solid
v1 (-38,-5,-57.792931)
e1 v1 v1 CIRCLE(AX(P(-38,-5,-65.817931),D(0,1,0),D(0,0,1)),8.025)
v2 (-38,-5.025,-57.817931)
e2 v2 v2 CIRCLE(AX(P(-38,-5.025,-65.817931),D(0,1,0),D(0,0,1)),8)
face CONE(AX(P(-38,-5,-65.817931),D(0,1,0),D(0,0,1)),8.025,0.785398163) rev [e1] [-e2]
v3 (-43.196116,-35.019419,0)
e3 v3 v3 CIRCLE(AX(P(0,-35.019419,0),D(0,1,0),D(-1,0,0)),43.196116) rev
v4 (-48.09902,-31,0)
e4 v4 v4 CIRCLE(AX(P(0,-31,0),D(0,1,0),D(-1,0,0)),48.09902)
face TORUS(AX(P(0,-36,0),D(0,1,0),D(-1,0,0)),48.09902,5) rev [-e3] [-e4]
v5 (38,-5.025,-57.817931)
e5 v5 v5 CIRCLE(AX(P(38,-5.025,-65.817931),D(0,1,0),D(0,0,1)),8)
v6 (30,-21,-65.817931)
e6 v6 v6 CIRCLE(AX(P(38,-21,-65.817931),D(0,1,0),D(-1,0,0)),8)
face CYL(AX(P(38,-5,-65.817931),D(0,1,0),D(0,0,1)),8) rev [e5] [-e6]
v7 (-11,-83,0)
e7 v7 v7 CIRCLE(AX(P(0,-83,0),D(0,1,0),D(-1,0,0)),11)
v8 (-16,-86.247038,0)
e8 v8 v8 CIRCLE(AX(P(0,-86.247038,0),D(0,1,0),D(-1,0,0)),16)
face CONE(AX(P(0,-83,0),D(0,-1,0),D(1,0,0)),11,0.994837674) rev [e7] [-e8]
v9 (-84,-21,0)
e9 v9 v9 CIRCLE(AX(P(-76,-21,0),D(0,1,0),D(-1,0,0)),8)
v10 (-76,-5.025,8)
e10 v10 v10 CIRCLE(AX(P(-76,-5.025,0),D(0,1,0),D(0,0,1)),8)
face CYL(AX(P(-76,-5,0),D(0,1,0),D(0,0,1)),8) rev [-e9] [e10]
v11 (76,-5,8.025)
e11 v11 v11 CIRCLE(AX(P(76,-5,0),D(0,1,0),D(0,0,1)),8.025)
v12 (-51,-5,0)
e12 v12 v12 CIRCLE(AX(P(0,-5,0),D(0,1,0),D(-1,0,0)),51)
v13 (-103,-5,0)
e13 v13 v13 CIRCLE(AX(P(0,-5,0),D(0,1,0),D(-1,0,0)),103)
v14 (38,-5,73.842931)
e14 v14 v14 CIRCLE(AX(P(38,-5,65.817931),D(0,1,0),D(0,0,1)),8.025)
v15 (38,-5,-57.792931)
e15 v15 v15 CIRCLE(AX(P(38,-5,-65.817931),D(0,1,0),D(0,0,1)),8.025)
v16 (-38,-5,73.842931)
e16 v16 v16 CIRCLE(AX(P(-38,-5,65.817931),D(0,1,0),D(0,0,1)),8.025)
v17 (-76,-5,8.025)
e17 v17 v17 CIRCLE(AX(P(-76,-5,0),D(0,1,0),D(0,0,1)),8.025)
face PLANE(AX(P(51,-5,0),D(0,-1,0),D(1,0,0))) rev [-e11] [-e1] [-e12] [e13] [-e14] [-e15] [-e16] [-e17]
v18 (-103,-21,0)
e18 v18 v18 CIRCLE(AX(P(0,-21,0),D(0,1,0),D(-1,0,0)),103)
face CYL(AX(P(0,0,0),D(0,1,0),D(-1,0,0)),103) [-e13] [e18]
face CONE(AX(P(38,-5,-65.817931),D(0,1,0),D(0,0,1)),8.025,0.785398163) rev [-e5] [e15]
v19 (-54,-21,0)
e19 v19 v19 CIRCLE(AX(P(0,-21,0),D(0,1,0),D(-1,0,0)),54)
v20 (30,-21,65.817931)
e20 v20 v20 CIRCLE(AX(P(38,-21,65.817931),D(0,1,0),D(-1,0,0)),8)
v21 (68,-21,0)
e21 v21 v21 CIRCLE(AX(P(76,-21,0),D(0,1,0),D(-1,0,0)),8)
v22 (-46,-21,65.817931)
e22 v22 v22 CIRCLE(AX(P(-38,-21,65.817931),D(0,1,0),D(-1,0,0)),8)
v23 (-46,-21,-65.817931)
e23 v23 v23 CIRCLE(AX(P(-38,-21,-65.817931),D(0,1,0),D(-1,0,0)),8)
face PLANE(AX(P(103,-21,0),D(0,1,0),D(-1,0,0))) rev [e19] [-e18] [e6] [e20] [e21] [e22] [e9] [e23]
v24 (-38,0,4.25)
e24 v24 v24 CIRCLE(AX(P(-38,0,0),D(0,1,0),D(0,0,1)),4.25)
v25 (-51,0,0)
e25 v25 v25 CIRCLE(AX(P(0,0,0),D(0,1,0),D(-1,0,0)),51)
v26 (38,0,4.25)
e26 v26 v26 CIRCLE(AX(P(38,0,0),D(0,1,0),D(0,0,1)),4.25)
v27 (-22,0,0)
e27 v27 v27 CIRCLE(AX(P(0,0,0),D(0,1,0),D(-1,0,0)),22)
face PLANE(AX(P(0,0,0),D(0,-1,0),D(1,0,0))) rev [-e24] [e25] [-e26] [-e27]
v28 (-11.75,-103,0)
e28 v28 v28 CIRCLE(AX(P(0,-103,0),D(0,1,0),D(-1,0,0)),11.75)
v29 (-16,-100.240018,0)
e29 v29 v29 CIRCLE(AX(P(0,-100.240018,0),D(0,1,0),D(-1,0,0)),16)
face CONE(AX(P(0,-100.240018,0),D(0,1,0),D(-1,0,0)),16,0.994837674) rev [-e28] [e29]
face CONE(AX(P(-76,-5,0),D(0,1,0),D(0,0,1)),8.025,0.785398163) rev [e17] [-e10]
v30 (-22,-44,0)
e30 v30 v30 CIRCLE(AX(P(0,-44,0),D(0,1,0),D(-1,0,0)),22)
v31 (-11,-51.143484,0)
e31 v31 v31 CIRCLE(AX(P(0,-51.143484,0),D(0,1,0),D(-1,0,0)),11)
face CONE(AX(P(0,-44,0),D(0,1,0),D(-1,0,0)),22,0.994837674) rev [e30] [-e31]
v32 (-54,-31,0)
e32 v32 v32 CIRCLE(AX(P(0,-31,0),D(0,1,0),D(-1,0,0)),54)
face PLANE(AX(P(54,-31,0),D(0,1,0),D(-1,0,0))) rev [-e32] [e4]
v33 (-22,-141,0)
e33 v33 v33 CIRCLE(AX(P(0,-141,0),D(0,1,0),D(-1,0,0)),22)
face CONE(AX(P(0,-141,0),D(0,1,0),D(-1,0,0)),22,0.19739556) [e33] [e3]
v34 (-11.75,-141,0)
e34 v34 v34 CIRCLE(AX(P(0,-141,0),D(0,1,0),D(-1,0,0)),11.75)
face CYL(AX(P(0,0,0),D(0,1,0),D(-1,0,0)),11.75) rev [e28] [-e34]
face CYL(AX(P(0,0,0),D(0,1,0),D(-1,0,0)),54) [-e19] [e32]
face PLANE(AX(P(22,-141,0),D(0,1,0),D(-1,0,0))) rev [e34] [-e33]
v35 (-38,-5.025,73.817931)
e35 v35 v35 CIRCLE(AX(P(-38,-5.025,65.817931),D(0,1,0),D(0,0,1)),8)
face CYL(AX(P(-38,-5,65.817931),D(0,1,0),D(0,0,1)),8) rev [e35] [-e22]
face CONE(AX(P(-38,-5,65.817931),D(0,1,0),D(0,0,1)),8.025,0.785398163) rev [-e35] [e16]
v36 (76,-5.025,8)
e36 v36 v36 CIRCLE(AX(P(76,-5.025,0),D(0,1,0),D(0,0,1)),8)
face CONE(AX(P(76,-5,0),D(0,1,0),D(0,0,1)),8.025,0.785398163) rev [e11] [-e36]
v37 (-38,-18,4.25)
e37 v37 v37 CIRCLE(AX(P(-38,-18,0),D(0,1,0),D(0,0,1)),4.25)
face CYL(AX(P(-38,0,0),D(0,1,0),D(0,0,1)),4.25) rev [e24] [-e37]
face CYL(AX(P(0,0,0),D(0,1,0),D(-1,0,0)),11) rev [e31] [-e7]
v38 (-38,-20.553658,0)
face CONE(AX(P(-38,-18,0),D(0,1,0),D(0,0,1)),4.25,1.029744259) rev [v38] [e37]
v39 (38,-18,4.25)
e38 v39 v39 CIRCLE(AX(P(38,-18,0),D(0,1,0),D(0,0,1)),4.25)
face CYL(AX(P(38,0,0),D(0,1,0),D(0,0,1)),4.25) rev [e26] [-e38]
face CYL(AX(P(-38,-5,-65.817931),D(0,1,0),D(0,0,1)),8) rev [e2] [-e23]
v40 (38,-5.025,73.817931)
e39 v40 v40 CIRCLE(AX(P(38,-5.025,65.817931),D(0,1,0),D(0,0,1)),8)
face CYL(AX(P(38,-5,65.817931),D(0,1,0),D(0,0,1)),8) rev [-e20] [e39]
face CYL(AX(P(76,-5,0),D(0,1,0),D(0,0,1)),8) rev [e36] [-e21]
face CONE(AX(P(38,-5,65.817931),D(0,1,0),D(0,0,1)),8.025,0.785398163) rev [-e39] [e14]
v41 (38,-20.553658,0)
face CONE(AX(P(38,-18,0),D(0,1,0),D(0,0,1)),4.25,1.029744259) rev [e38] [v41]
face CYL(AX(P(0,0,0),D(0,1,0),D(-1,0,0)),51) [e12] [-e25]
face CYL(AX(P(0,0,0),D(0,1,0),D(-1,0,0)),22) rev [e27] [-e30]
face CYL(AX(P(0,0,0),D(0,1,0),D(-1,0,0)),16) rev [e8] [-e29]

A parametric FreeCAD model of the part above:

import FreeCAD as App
import Part
import Sketcher

V = App.Vector
Q = App.Units.Quantity


def edges_at(feature, points):
    """Names of the edges that pass closest to the given points."""
    edges = feature.Shape.Edges
    near = lambda p: min(range(len(edges)), key=lambda i: edges[i].distToShape(Part.Vertex(*p))[0])
    return sorted({f"Edge{near(p) + 1}" for p in points})

doc = App.newDocument("Part")
body = doc.addObject("PartDesign::Body", "Body")

sketch1 = body.newObject("Sketcher::SketchObject", "Sketch")
sketch1.AttachmentSupport = (doc.getObject("XY_Plane"), [""])
sketch1.MapMode = "FlatFace"
sketch1.addGeometry(Part.LineSegment(V(51, 0, 0), V(0, 0, 0)), False)
sketch1.addGeometry(Part.LineSegment(V(0, 0, 0), V(0, -141, 0)), False)
sketch1.addGeometry(Part.LineSegment(V(0, -141, 0), V(22, -141, 0)), False)
sketch1.addGeometry(Part.LineSegment(V(22, -141, 0), V(44, -31, 0)), False)
sketch1.addGeometry(Part.LineSegment(V(44, -31, 0), V(54, -31, 0)), False)
sketch1.addGeometry(Part.LineSegment(V(54, -31, 0), V(54, -21, 0)), False)
sketch1.addGeometry(Part.LineSegment(V(54, -21, 0), V(103, -21, 0)), False)
sketch1.addGeometry(Part.LineSegment(V(103, -21, 0), V(103, -5, 0)), False)
sketch1.addGeometry(Part.LineSegment(V(103, -5, 0), V(51, -5, 0)), False)
sketch1.addGeometry(Part.LineSegment(V(51, -5, 0), V(51, 0, 0)), False)
sketch1.addConstraint(Sketcher.Constraint("Coincident", 0, 2, 1, 1))
sketch1.addConstraint(Sketcher.Constraint("Coincident", 1, 2, 2, 1))
sketch1.addConstraint(Sketcher.Constraint("Coincident", 2, 2, 3, 1))
sketch1.addConstraint(Sketcher.Constraint("Coincident", 3, 2, 4, 1))
sketch1.addConstraint(Sketcher.Constraint("Coincident", 4, 2, 5, 1))
sketch1.addConstraint(Sketcher.Constraint("Coincident", 5, 2, 6, 1))
sketch1.addConstraint(Sketcher.Constraint("Coincident", 6, 2, 7, 1))
sketch1.addConstraint(Sketcher.Constraint("Coincident", 7, 2, 8, 1))
sketch1.addConstraint(Sketcher.Constraint("Coincident", 8, 2, 9, 1))
sketch1.addConstraint(Sketcher.Constraint("Coincident", 9, 2, 0, 1))
sketch1.addConstraint(Sketcher.Constraint("Horizontal", 0))
sketch1.addConstraint(Sketcher.Constraint("Vertical", 1))
sketch1.addConstraint(Sketcher.Constraint("Horizontal", 2))
sketch1.addConstraint(Sketcher.Constraint("Horizontal", 4))
sketch1.addConstraint(Sketcher.Constraint("Vertical", 5))
sketch1.addConstraint(Sketcher.Constraint("Horizontal", 6))
sketch1.addConstraint(Sketcher.Constraint("Vertical", 7))
sketch1.addConstraint(Sketcher.Constraint("Horizontal", 8))
sketch1.addConstraint(Sketcher.Constraint("Vertical", 9))
sketch1.addConstraint(Sketcher.Constraint("Coincident", 0, 2, -1, 1))
sketch1.addConstraint(Sketcher.Constraint("Equal", 4, 5))
sketch1.addConstraint(Sketcher.Constraint("DistanceX", 0, 2, 0, 1, 51.0))
sketch1.addConstraint(Sketcher.Constraint("DistanceX", 2, 1, 2, 2, 22.0))
sketch1.addConstraint(Sketcher.Constraint("DistanceX", 4, 1, 4, 2, 10.0))
sketch1.addConstraint(Sketcher.Constraint("DistanceX", 6, 1, 6, 2, 49.0))
sketch1.addConstraint(Sketcher.Constraint("DistanceX", 8, 2, 8, 1, 52.0))
sketch1.addConstraint(Sketcher.Constraint("DistanceY", 1, 2, 1, 1, 141.0))
sketch1.addConstraint(Sketcher.Constraint("DistanceY", 7, 1, 7, 2, 16.0))
sketch1.addConstraint(Sketcher.Constraint("DistanceY", 9, 1, 9, 2, 5.0))
revolution = body.newObject("PartDesign::Revolution", "Revolution")
revolution.Profile = sketch1
revolution.ReferenceAxis = (sketch1, ["V_Axis"])
revolution.Angle = 360

sketch2 = body.newObject("Sketcher::SketchObject", "Sketch001")
sketch2.AttachmentSupport = (doc.getObject("XY_Plane"), [""])
sketch2.MapMode = "FlatFace"
sketch2.addGeometry(Part.LineSegment(V(-12, -103, 0), V(-12, -141, 0)), False)
sketch2.addGeometry(Part.LineSegment(V(-12, -141, 0), V(0, -141, 0)), False)
sketch2.addGeometry(Part.LineSegment(V(0, -141, 0), V(0, 0, 0)), False)
sketch2.addGeometry(Part.LineSegment(V(0, 0, 0), V(-22, 0, 0)), False)
sketch2.addGeometry(Part.LineSegment(V(-22, 0, 0), V(-22, -44, 0)), False)
sketch2.addGeometry(Part.LineSegment(V(-22, -44, 0), V(-11, -51, 0)), False)
sketch2.addGeometry(Part.LineSegment(V(-11, -51, 0), V(-11, -83, 0)), False)
sketch2.addGeometry(Part.LineSegment(V(-11, -83, 0), V(-16, -86, 0)), False)
sketch2.addGeometry(Part.LineSegment(V(-16, -86, 0), V(-16, -100, 0)), False)
sketch2.addGeometry(Part.LineSegment(V(-16, -100, 0), V(-12, -103, 0)), False)
sketch2.addConstraint(Sketcher.Constraint("Coincident", 0, 2, 1, 1))
sketch2.addConstraint(Sketcher.Constraint("Coincident", 1, 2, 2, 1))
sketch2.addConstraint(Sketcher.Constraint("Coincident", 2, 2, 3, 1))
sketch2.addConstraint(Sketcher.Constraint("Coincident", 3, 2, 4, 1))
sketch2.addConstraint(Sketcher.Constraint("Coincident", 4, 2, 5, 1))
sketch2.addConstraint(Sketcher.Constraint("Coincident", 5, 2, 6, 1))
sketch2.addConstraint(Sketcher.Constraint("Coincident", 6, 2, 7, 1))
sketch2.addConstraint(Sketcher.Constraint("Coincident", 7, 2, 8, 1))
sketch2.addConstraint(Sketcher.Constraint("Coincident", 8, 2, 9, 1))
sketch2.addConstraint(Sketcher.Constraint("Coincident", 9, 2, 0, 1))
sketch2.addConstraint(Sketcher.Constraint("Vertical", 0))
sketch2.addConstraint(Sketcher.Constraint("Horizontal", 1))
sketch2.addConstraint(Sketcher.Constraint("Vertical", 2))
sketch2.addConstraint(Sketcher.Constraint("Horizontal", 3))
sketch2.addConstraint(Sketcher.Constraint("Vertical", 4))
sketch2.addConstraint(Sketcher.Constraint("Vertical", 6))
sketch2.addConstraint(Sketcher.Constraint("Vertical", 8))
sketch2.addConstraint(Sketcher.Constraint("Coincident", 2, 2, -1, 1))
sketch2.addConstraint(Sketcher.Constraint("Parallel", 5, 9))
sketch2.addConstraint(Sketcher.Constraint("DistanceX", 3, 2, 3, 1, 22.0))
sketch2.addConstraint(Sketcher.Constraint("DistanceY", 0, 2, 0, 1, 38.0))
sketch2.addConstraint(Sketcher.Constraint("DistanceY", 2, 1, 2, 2, 141.0))
sketch2.addConstraint(Sketcher.Constraint("DistanceY", 4, 2, 4, 1, 44.0))
sketch2.addConstraint(Sketcher.Constraint("Angle", 5, Q("-33 deg")))
sketch2.addConstraint(Sketcher.Constraint("Angle", 7, Q("-147 deg")))
sketch2.addConstraint(Sketcher.Constraint("DistanceX", 5, 2, -1, 1, 11.0))
sketch2.addConstraint(Sketcher.Constraint("DistanceY", 6, 2, -1, 1, 83.0))
sketch2.addConstraint(Sketcher.Constraint("DistanceX", 7, 2, -1, 1, 16.0))
sketch2.addConstraint(Sketcher.Constraint("DistanceX", 1, 1, 1, 2, 11.75))
groove = body.newObject("PartDesign::Groove", "Groove")
groove.Profile = sketch2
groove.ReferenceAxis = (sketch2, ["V_Axis"])
groove.Angle = 360
doc.recompute()

fillet = body.newObject("PartDesign::Fillet", "Fillet")
fillet.Base = (groove, edges_at(groove, [(44, -31, 0)]))
fillet.Radius = 5

sketch3 = body.newObject("Sketcher::SketchObject", "Sketch002")
sketch3.AttachmentSupport = (doc.getObject("XZ_Plane"), [""])
sketch3.MapMode = "FlatFace"
sketch3.AttachmentOffset = App.Placement(V(0, 0, 5), App.Rotation())
sketch3.addGeometry(Part.Circle(V(-76, 0, 0), V(0, 0, 1), 8), False)
sketch3.addConstraint(Sketcher.Constraint("PointOnObject", 0, 3, -1))
sketch3.addConstraint(Sketcher.Constraint("Diameter", 0, 16.0))
sketch3.addConstraint(Sketcher.Constraint("DistanceX", 0, 3, -1, 1, 76.0))
doc.recompute()
hole = body.newObject("PartDesign::Hole", "Hole")
hole.Profile = sketch3
hole.ThreadType = "None"
hole.Diameter = 16
hole.DepthType = "ThroughAll"
hole.HoleCutType = "Countersink"
hole.HoleCutDiameter = 16.05
hole.HoleCutCountersinkAngle = 90
hole.Reversed = True
doc.recompute()

polarpattern = body.newObject("PartDesign::PolarPattern", "PolarPattern")
polarpattern.Originals = [hole]
polarpattern.Axis = (doc.getObject("Y_Axis"), [""])
polarpattern.Angle = 360
polarpattern.Occurrences = 6
body.Tip = polarpattern

sketch4 = body.newObject("Sketcher::SketchObject", "Sketch003")
sketch4.AttachmentSupport = (doc.getObject("XZ_Plane"), [""])
sketch4.MapMode = "FlatFace"
sketch4.addGeometry(Part.Circle(V(38, 0, 0), V(0, 0, 1), 4.2), False)
sketch4.addGeometry(Part.Circle(V(-38, 0, 0), V(0, 0, 1), 4.2), False)
sketch4.addConstraint(Sketcher.Constraint("Equal", 0, 1))
sketch4.addConstraint(Sketcher.Constraint("Symmetric", 0, 3, 1, 3, -1, 1))
sketch4.addConstraint(Sketcher.Constraint("PointOnObject", 0, 3, -1))
sketch4.addConstraint(Sketcher.Constraint("Diameter", 0, 8.5))
sketch4.addConstraint(Sketcher.Constraint("DistanceX", -1, 1, 0, 3, 38.0))
doc.recompute()
hole2 = body.newObject("PartDesign::Hole", "Hole001")
hole2.Profile = sketch4
hole2.ThreadType = "None"
hole2.Diameter = 8.5
hole2.DepthType = "Dimension"
hole2.Depth = 18
hole2.DrillPoint = "Angled"
hole2.DrillPointAngle = 118
hole2.Reversed = True

doc.recompute()
